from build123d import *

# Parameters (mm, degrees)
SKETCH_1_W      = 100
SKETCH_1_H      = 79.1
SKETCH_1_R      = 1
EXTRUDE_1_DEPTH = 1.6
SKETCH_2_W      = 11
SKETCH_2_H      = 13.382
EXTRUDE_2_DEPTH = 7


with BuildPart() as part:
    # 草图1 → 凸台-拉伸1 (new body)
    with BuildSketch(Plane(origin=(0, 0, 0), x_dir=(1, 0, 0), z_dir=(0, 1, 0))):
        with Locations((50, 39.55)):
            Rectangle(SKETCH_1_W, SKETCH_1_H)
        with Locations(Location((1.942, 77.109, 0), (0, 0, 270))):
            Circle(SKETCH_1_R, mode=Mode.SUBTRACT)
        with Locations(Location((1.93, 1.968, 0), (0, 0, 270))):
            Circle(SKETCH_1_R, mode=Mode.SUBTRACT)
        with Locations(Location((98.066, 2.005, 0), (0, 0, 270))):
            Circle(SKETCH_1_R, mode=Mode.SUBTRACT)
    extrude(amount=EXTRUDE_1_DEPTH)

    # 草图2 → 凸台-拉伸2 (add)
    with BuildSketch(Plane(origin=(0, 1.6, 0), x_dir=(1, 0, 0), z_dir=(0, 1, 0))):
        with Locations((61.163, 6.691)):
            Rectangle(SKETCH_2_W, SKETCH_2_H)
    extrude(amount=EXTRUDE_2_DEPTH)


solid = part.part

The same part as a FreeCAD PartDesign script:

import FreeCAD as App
import Part
import Sketcher
from FreeCAD import Vector

doc = App.newDocument("Part")
params = doc.addObject("Spreadsheet::Sheet", "Params")
for row, (alias, value) in enumerate([
    ("sketch1_diameter", "2 mm"),
    ("sketch1_width", "100 mm"),
    ("sketch1_height", "79.1 mm"),
    ("pad1_length", "1.6 mm"),
    ("sketch2_width", "11 mm"),
    ("pad2_length", "7 mm"),
], start=1):
    params.set(f"A{row}", alias)
    params.set(f"B{row}", "=" + value)
    params.setAlias(f"B{row}", alias)

body = doc.addObject("PartDesign::Body", "Body")

sketch1 = body.newObject("Sketcher::SketchObject", "Sketch")
sketch1.AttachmentSupport = (doc.getObject("XZ_Plane"), [""])
sketch1.MapMode = "FlatFace"
sketch1.addGeometry([
    Part.LineSegment(Vector(0, -79.1, 0), Vector(0, 0, 0)),
    Part.LineSegment(Vector(0, 0, 0), Vector(100, 0, 0)),
    Part.LineSegment(Vector(100, 0, 0), Vector(100, -79.1, 0)),
    Part.LineSegment(Vector(100, -79.1, 0), Vector(0, -79.1, 0)),
    Part.Circle(Vector(1.9, -2, 0), Vector(0, 0, 1), 1),
    Part.Circle(Vector(98.1, -2, 0), Vector(0, 0, 1), 1),
    Part.Circle(Vector(1.9, -77.1, 0), Vector(0, 0, 1), 1),
], False)
sketch1.addConstraint([
    Sketcher.Constraint("Coincident", 0, 2, 1, 1),
    Sketcher.Constraint("Coincident", 1, 2, 2, 1),
    Sketcher.Constraint("Coincident", 2, 2, 3, 1),
    Sketcher.Constraint("Coincident", 3, 2, 0, 1),
    Sketcher.Constraint("Vertical", 0),
    Sketcher.Constraint("Horizontal", 1),
    Sketcher.Constraint("Vertical", 2),
    Sketcher.Constraint("Horizontal", 3),
    Sketcher.Constraint("Coincident", 0, 2, -1, 1),
    Sketcher.Constraint("Equal", 4, 5),
    Sketcher.Constraint("Equal", 5, 6),
    Sketcher.Constraint("Diameter", 4, 2.0),
    Sketcher.Constraint("DistanceX", 1, 1, 1, 2, 100.0),
    Sketcher.Constraint("DistanceY", 0, 1, 0, 2, 79.1),
    Sketcher.Constraint("DistanceX", -1, 1, 4, 3, 1.93),
    Sketcher.Constraint("DistanceY", 4, 3, -1, 1, 1.968),
    Sketcher.Constraint("DistanceX", -1, 1, 5, 3, 98.066),
    Sketcher.Constraint("DistanceY", 5, 3, -1, 1, 2.005),
    Sketcher.Constraint("DistanceX", -1, 1, 6, 3, 1.942),
    Sketcher.Constraint("DistanceY", 6, 3, -1, 1, 77.109),
])
sketch1.setExpression("Constraints[11]", "Params.sketch1_diameter")
sketch1.setExpression("Constraints[12]", "Params.sketch1_width")
sketch1.setExpression("Constraints[13]", "Params.sketch1_height")
pad1 = body.newObject("PartDesign::Pad", "Pad")
pad1.Profile = sketch1
pad1.setExpression("Length", "Params.pad1_length")
pad1.Reversed = True

sketch2 = body.newObject("Sketcher::SketchObject", "Sketch001")
sketch2.AttachmentSupport = (doc.getObject("XZ_Plane"), [""])
sketch2.MapMode = "FlatFace"
sketch2.AttachmentOffset = App.Placement(Vector(0, 0, -1.6), App.Rotation())
sketch2.addGeometry([
    Part.LineSegment(Vector(56, -13, 0), Vector(56, 0, 0)),
    Part.LineSegment(Vector(56, 0, 0), Vector(67, 0, 0)),
    Part.LineSegment(Vector(67, 0, 0), Vector(67, -13, 0)),
    Part.LineSegment(Vector(67, -13, 0), Vector(56, -13, 0)),
], False)
sketch2.addConstraint([
    Sketcher.Constraint("Coincident", 0, 2, 1, 1),
    Sketcher.Constraint("Coincident", 1, 2, 2, 1),
    Sketcher.Constraint("Coincident", 2, 2, 3, 1),
    Sketcher.Constraint("Coincident", 3, 2, 0, 1),
    Sketcher.Constraint("Vertical", 0),
    Sketcher.Constraint("Horizontal", 1),
    Sketcher.Constraint("Vertical", 2),
    Sketcher.Constraint("Horizontal", 3),
    Sketcher.Constraint("PointOnObject", 0, 2, -1),
    Sketcher.Constraint("DistanceX", 1, 1, 1, 2, 11.0),
    Sketcher.Constraint("DistanceY", 0, 1, 0, 2, 13.382),
    Sketcher.Constraint("DistanceX", -1, 1, 0, 2, 55.663),
])
sketch2.setExpression("Constraints[9]", "Params.sketch2_width")
pad2 = body.newObject("PartDesign::Pad", "Pad001")
pad2.Profile = sketch2
pad2.setExpression("Length", "Params.pad2_length")
pad2.Reversed = True

doc.recompute()
